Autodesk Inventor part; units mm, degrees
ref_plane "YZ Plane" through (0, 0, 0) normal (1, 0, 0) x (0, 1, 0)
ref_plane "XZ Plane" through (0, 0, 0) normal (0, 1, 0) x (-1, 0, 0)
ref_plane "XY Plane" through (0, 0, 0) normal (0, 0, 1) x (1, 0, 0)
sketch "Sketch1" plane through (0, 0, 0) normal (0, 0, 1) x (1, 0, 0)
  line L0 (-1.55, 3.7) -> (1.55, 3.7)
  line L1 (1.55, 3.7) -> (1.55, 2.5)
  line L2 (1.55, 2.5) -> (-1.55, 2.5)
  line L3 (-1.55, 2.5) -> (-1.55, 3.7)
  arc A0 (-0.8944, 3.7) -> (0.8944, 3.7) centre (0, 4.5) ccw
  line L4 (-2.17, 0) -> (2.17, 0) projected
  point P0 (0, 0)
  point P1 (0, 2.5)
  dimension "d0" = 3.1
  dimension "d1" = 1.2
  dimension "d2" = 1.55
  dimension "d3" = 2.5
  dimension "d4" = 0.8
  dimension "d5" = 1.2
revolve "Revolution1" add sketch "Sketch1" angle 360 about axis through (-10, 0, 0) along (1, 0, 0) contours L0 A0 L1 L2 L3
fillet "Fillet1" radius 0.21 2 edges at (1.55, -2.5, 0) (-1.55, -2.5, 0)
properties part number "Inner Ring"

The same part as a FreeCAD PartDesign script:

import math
import FreeCAD as App
import Part
import Sketcher

V = App.Vector
Q = App.Units.Quantity


def edges_at(feature, points):
    """Names of the edges that pass closest to the given points."""
    edges = feature.Shape.Edges
    near = lambda p: min(range(len(edges)), key=lambda i: edges[i].distToShape(Part.Vertex(*p))[0])
    return sorted({f"Edge{near(p) + 1}" for p in points})

doc = App.newDocument("Part")
params = doc.addObject("Spreadsheet::Sheet", "Params")
for row, (alias, value) in enumerate([
    ("sketch1_radius", "1.2 mm"),
    ("sketch1_width", "3.1 mm"),
    ("sketch1_height", "1.2 mm"),
    ("revolution_angle", "360 deg"),
    ("fillet_radius", "0.21 mm"),
], start=1):
    params.set(f"A{row}", alias)
    params.set(f"B{row}", "=" + value)
    params.setAlias(f"B{row}", alias)

body = doc.addObject("PartDesign::Body", "Body")

# Sketch on XY plane
sketch1 = body.newObject("Sketcher::SketchObject", "Sketch")
sketch1.AttachmentSupport = (doc.getObject("XY_Plane"), [""])
sketch1.MapMode = "FlatFace"
sketch1.addGeometry([
    Part.LineSegment(V(-0.9, 3.7, 0), V(-1.6, 3.7, 0)),  # 0
    Part.LineSegment(V(-1.6, 3.7, 0), V(-1.6, 2.5, 0)),  # 1
    Part.LineSegment(V(-1.6, 2.5, 0), V(1.6, 2.5, 0)),  # 2
    Part.LineSegment(V(1.6, 2.5, 0), V(1.6, 3.7, 0)),  # 3
    Part.LineSegment(V(1.6, 3.7, 0), V(0.9, 3.7, 0)),  # 4
    Part.ArcOfCircle(Part.Circle(V(0, 4.5, 0), V(0, 0, 1), 1.2), math.radians(-138), math.radians(-42)),  # 5
], False)
sketch1.addConstraint([
    Sketcher.Constraint("Coincident", 0, 2, 1, 1),
    Sketcher.Constraint("Coincident", 1, 2, 2, 1),
    Sketcher.Constraint("Coincident", 2, 2, 3, 1),
    Sketcher.Constraint("Coincident", 3, 2, 4, 1),
    Sketcher.Constraint("Coincident", 4, 2, 5, 2),
    Sketcher.Constraint("Coincident", 5, 1, 0, 1),
    Sketcher.Constraint("Horizontal", 0),
    Sketcher.Constraint("Vertical", 1),
    Sketcher.Constraint("Horizontal", 2),
    Sketcher.Constraint("Vertical", 3),
    Sketcher.Constraint("Horizontal", 4),
    Sketcher.Constraint("Symmetric", 0, 2, 3, 2, -2),
    Sketcher.Constraint("PointOnObject", 5, 3, -2),
    Sketcher.Constraint("Radius", 5, Q("1.2 mm")),
    Sketcher.Constraint("DistanceX", 2, 1, 2, 2, Q("3.1 mm")),
    Sketcher.Constraint("DistanceY", 1, 2, 1, 1, Q("1.2 mm")),
    Sketcher.Constraint("DistanceY", -1, 1, 1, 2, Q("2.5 mm")),
    Sketcher.Constraint("DistanceY", 0, 2, 5, 3, Q("0.8 mm")),
])
sketch1.setExpression("Constraints[13]", "Params.sketch1_radius")
sketch1.setExpression("Constraints[14]", "Params.sketch1_width")
sketch1.setExpression("Constraints[15]", "Params.sketch1_height")
revolution = body.newObject("PartDesign::Revolution", "Revolution")
revolution.Profile = sketch1
revolution.ReferenceAxis = (sketch1, ["H_Axis"])
revolution.setExpression("Angle", "Params.revolution_angle")
doc.recompute()

fillet = body.newObject("PartDesign::Fillet", "Fillet")
fillet.Base = (revolution, edges_at(revolution, [(1.55, -2.5, 0), (-1.55, -2.5, 0)]))
fillet.setExpression("Radius", "Params.fillet_radius")

doc.recompute()
